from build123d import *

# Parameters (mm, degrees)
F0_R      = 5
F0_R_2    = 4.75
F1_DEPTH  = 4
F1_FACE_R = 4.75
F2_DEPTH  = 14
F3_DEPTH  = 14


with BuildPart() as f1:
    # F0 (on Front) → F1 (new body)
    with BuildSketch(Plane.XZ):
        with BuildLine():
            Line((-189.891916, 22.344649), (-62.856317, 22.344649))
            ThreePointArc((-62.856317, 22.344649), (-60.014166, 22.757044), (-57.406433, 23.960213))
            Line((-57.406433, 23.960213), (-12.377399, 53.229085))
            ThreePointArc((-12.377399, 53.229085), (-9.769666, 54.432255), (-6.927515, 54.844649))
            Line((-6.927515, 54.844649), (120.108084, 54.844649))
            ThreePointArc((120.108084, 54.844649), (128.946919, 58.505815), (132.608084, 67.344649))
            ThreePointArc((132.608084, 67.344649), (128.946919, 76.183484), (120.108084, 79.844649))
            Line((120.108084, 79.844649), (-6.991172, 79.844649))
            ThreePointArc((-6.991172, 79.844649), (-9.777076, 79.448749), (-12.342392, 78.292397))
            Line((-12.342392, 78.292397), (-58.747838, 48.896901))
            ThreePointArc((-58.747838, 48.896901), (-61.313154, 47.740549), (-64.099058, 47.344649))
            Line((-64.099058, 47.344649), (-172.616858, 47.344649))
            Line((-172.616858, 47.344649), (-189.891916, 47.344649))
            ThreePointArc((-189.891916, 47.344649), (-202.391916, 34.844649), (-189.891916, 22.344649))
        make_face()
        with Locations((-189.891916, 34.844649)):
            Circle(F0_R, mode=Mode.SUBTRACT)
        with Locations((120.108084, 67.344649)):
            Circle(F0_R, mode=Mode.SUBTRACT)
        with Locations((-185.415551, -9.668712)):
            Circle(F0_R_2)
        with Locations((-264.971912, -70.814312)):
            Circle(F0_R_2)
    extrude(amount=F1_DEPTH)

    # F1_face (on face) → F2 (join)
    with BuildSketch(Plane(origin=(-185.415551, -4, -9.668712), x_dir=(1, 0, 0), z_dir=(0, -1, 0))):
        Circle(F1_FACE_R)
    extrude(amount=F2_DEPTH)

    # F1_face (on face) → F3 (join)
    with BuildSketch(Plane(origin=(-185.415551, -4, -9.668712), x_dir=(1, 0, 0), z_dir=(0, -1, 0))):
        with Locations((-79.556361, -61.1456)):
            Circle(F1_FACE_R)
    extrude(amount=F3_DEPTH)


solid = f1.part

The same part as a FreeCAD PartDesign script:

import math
import FreeCAD as App
import Part
import Sketcher
from FreeCAD import Vector
Q = App.Units.Quantity

doc = App.newDocument("Part")
body = doc.addObject("PartDesign::Body", "Body")
body.AllowCompound = True

sketch1 = doc.addObject("Sketcher::SketchObject", "Sketch")
body.addObject(sketch1)
sketch1.AttachmentSupport = (doc.XZ_Plane, [""])
sketch1.MapMode = "FlatFace"
sketch1.addGeometry(Part.LineSegment(Vector(-189.9, 22.3, 0), Vector(-62.9, 22.3, 0)), False)
sketch1.addGeometry(Part.ArcOfCircle(Part.Circle(Vector(-62.9, 32.3, 0), Vector(0, 0, 1), 10), math.radians(-90), math.radians(-57)), False)
sketch1.addGeometry(Part.LineSegment(Vector(-57.4, 24, 0), Vector(-12.4, 53.2, 0)), False)
sketch1.addGeometry(Part.ArcOfCircle(Part.Circle(Vector(-6.9, 44.8, 0), Vector(0, 0, 1), 10), math.radians(90), math.radians(123)), False)
sketch1.addGeometry(Part.LineSegment(Vector(-6.9, 54.8, 0), Vector(120.1, 54.8, 0)), False)
sketch1.addGeometry(Part.ArcOfCircle(Part.Circle(Vector(120.1, 67.3, 0), Vector(0, 0, 1), 12.5), math.radians(-90), math.radians(0)), False)
sketch1.addGeometry(Part.ArcOfCircle(Part.Circle(Vector(120.1, 67.3, 0), Vector(0, 0, 1), 12.5), math.radians(0), math.radians(90)), False)
sketch1.addGeometry(Part.LineSegment(Vector(120.1, 79.8, 0), Vector(-7, 79.8, 0)), False)
sketch1.addGeometry(Part.ArcOfCircle(Part.Circle(Vector(-7, 69.8, 0), Vector(0, 0, 1), 10), math.radians(90), math.radians(122)), False)
sketch1.addGeometry(Part.LineSegment(Vector(-12.3, 78.3, 0), Vector(-58.7, 48.9, 0)), False)
sketch1.addGeometry(Part.ArcOfCircle(Part.Circle(Vector(-64.1, 57.3, 0), Vector(0, 0, 1), 10), math.radians(-90), math.radians(-58)), False)
sketch1.addGeometry(Part.LineSegment(Vector(-64.1, 47.3, 0), Vector(-189.9, 47.3, 0)), False)
sketch1.addGeometry(Part.ArcOfCircle(Part.Circle(Vector(-189.9, 34.8, 0), Vector(0, 0, 1), 12.5), math.radians(90), math.radians(270)), False)
sketch1.addGeometry(Part.Circle(Vector(-189.9, 34.8, 0), Vector(0, 0, 1), 5), False)
sketch1.addGeometry(Part.Circle(Vector(120.1, 67.3, 0), Vector(0, 0, 1), 5), False)
sketch1.addGeometry(Part.Circle(Vector(-185.4, -9.7, 0), Vector(0, 0, 1), 4.8), False)
sketch1.addGeometry(Part.Circle(Vector(-265, -70.8, 0), Vector(0, 0, 1), 4.8), False)
sketch1.addConstraint(Sketcher.Constraint("Tangent", 0, 2, 1, 1))
sketch1.addConstraint(Sketcher.Constraint("Tangent", 1, 2, 2, 1))
sketch1.addConstraint(Sketcher.Constraint("Tangent", 2, 2, 3, 2))
sketch1.addConstraint(Sketcher.Constraint("Tangent", 3, 1, 4, 1))
sketch1.addConstraint(Sketcher.Constraint("Tangent", 4, 2, 5, 1))
sketch1.addConstraint(Sketcher.Constraint("Tangent", 5, 2, 6, 1))
sketch1.addConstraint(Sketcher.Constraint("Tangent", 6, 2, 7, 1))
sketch1.addConstraint(Sketcher.Constraint("Tangent", 7, 2, 8, 1))
sketch1.addConstraint(Sketcher.Constraint("Tangent", 8, 2, 9, 1))
sketch1.addConstraint(Sketcher.Constraint("Tangent", 9, 2, 10, 2))
sketch1.addConstraint(Sketcher.Constraint("Tangent", 10, 1, 11, 1))
sketch1.addConstraint(Sketcher.Constraint("Tangent", 11, 2, 12, 1))
sketch1.addConstraint(Sketcher.Constraint("Tangent", 12, 2, 0, 1))
sketch1.addConstraint(Sketcher.Constraint("Horizontal", 0))
sketch1.addConstraint(Sketcher.Constraint("Horizontal", 4))
sketch1.addConstraint(Sketcher.Constraint("Horizontal", 7))
sketch1.addConstraint(Sketcher.Constraint("Horizontal", 11))
sketch1.addConstraint(Sketcher.Constraint("Coincident", 13, 3, 12, 3))
sketch1.addConstraint(Sketcher.Constraint("Coincident", 14, 3, 5, 3))
sketch1.addConstraint(Sketcher.Constraint("Equal", 5, 6))
sketch1.addConstraint(Sketcher.Constraint("Equal", 8, 10))
sketch1.addConstraint(Sketcher.Constraint("Equal", 6, 12))
sketch1.addConstraint(Sketcher.Constraint("Equal", 13, 14))
sketch1.addConstraint(Sketcher.Constraint("Equal", 15, 16))
sketch1.addConstraint(Sketcher.Constraint("Horizontal", 14, 3, 5, 2))
sketch1.addConstraint(Sketcher.Constraint("Equal", 0, 4))
sketch1.addConstraint(Sketcher.Constraint("Diameter", 13, Q("10 mm")))
sketch1.addConstraint(Sketcher.Constraint("Diameter", 15, Q("9.5 mm")))
sketch1.addConstraint(Sketcher.Constraint("Radius", 5, Q("12.500001 mm")))
sketch1.addConstraint(Sketcher.Constraint("DistanceX", 12, 3, 5, 3, Q("309.999999 mm")))
sketch1.addConstraint(Sketcher.Constraint("DistanceY", 1, 3, 3, 3, Q("12.5 mm")))
sketch1.addConstraint(Sketcher.Constraint("DistanceY", 12, 3, 5, 3, Q("32.500001 mm")))
sketch1.addConstraint(Sketcher.Constraint("Radius", 1, Q("10.000011 mm")))
sketch1.addConstraint(Sketcher.Constraint("DistanceX", 0, 1, 0, 2, Q("127.035599 mm")))
sketch1.addConstraint(Sketcher.Constraint("Radius", 8, Q("10.000004 mm")))
sketch1.addConstraint(Sketcher.Constraint("DistanceX", 11, 2, 11, 1, Q("125.792858 mm")))
sketch1.addConstraint(Sketcher.Constraint("DistanceX", 2, 2, -1, 1, Q("12.377399 mm")))
sketch1.addConstraint(Sketcher.Constraint("DistanceY", -1, 1, 9, 2, Q("48.896901 mm")))
sketch1.addConstraint(Sketcher.Constraint("DistanceY", 16, 3, 15, 3, Q("61.1456 mm")))
sketch1.addConstraint(Sketcher.Constraint("DistanceX", 7, 2, 7, 1, Q("127.099256 mm")))
sketch1.addConstraint(Sketcher.Constraint("DistanceX", 15, 3, -1, 1, Q("185.415551 mm")))
sketch1.addConstraint(Sketcher.Constraint("DistanceY", 15, 3, -1, 1, Q("9.668712 mm")))
sketch1.addConstraint(Sketcher.Constraint("DistanceX", 16, 3, -1, 1, Q("264.971912 mm")))
pad1 = doc.addObject("PartDesign::Pad", "Pad")
body.addObject(pad1)
pad1.Profile = sketch1
pad1.Length = 4

sketch2 = doc.addObject("Sketcher::SketchObject", "Sketch001")
body.addObject(sketch2)
sketch2.AttachmentSupport = (doc.XZ_Plane, [""])
sketch2.MapMode = "FlatFace"
sketch2.AttachmentOffset = App.Placement(Vector(0, 0, 4), App.Rotation())
sketch2.addGeometry(Part.Circle(Vector(-185.4, -9.7, 0), Vector(0, 0, 1), 4.8), False)
sketch2.addConstraint(Sketcher.Constraint("Diameter", 0, Q("9.5 mm")))
sketch2.addConstraint(Sketcher.Constraint("DistanceX", 0, 3, -1, 1, Q("185.415551 mm")))
sketch2.addConstraint(Sketcher.Constraint("DistanceY", 0, 3, -1, 1, Q("9.668712 mm")))
pad2 = doc.addObject("PartDesign::Pad", "Pad001")
body.addObject(pad2)
pad2.Profile = sketch2
pad2.Length = 14

sketch3 = doc.addObject("Sketcher::SketchObject", "Sketch002")
body.addObject(sketch3)
sketch3.AttachmentSupport = (doc.XZ_Plane, [""])
sketch3.MapMode = "FlatFace"
sketch3.AttachmentOffset = App.Placement(Vector(0, 0, 4), App.Rotation())
sketch3.addGeometry(Part.Circle(Vector(-265, -70.8, 0), Vector(0, 0, 1), 4.8), False)
sketch3.addConstraint(Sketcher.Constraint("Diameter", 0, Q("9.5 mm")))
sketch3.addConstraint(Sketcher.Constraint("DistanceX", 0, 3, -1, 1, Q("264.971912 mm")))
sketch3.addConstraint(Sketcher.Constraint("DistanceY", 0, 3, -1, 1, Q("70.814312 mm")))
pad3 = doc.addObject("PartDesign::Pad", "Pad002")
body.addObject(pad3)
pad3.Profile = sketch3
pad3.Length = 14

doc.recompute()
